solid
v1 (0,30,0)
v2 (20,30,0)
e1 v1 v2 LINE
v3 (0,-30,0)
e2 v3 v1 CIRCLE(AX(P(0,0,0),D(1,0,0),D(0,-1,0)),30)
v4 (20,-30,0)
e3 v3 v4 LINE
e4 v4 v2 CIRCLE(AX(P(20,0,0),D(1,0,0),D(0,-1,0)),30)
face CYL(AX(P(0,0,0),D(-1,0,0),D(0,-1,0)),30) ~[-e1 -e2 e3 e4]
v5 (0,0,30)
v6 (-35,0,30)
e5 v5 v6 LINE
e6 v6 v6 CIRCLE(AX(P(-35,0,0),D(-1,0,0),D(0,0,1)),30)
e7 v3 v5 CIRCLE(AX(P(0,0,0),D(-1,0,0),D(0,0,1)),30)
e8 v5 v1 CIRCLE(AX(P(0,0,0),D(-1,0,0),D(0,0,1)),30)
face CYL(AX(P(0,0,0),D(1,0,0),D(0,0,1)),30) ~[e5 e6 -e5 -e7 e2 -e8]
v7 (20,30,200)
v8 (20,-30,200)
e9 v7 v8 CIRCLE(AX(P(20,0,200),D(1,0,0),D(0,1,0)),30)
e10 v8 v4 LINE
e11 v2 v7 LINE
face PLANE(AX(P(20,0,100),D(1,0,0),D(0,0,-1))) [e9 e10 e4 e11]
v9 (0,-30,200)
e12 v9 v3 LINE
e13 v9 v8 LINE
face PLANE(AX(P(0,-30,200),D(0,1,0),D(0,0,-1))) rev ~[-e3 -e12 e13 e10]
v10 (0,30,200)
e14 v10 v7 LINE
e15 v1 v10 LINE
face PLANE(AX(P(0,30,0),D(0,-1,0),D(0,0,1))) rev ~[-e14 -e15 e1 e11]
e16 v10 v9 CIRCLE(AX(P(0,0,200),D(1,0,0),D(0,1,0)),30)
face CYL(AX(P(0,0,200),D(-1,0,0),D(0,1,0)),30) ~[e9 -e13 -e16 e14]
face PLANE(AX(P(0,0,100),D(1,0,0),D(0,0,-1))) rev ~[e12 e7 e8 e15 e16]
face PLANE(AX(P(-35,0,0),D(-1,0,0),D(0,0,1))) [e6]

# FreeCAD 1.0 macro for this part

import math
import FreeCAD as App
import Part
import Sketcher

V = App.Vector

doc = App.newDocument("Part")
body = doc.addObject("PartDesign::Body", "Body")

sketch1 = body.newObject("Sketcher::SketchObject", "Sketch")
sketch1.AttachmentSupport = (doc.getObject("YZ_Plane"), [""])
sketch1.MapMode = "FlatFace"
sketch1.addGeometry([
    Part.LineSegment(V(30, 0, 0), V(30, 200, 0)),
    Part.ArcOfCircle(Part.Circle(V(0, 200, 0), V(0, 0, 1), 30), math.radians(0), math.radians(180)),
    Part.LineSegment(V(-30, 200, 0), V(-30, 0, 0)),
    Part.ArcOfCircle(Part.Circle(V(0, 0, 0), V(0, 0, 1), 30), math.radians(180), math.radians(360)),
], False)
sketch1.addConstraint([
    Sketcher.Constraint("Tangent", 0, 2, 1, 1),
    Sketcher.Constraint("Tangent", 1, 2, 2, 1),
    Sketcher.Constraint("Tangent", 2, 2, 3, 1),
    Sketcher.Constraint("Tangent", 3, 2, 0, 1),
    Sketcher.Constraint("Vertical", 0),
    Sketcher.Constraint("Vertical", 2),
    Sketcher.Constraint("Coincident", 3, 3, -1, 1),
    Sketcher.Constraint("Radius", 1, 30.0),
    Sketcher.Constraint("DistanceY", 0, 1, 0, 2, 200.0),
])
pad1 = body.newObject("PartDesign::Pad", "Pad")
pad1.Profile = sketch1
pad1.Length = 20

sketch2 = body.newObject("Sketcher::SketchObject", "Sketch001")
sketch2.AttachmentSupport = (doc.getObject("YZ_Plane"), [""])
sketch2.MapMode = "FlatFace"
sketch2.addGeometry(Part.Circle(V(0, 0, 0), V(0, 0, 1), 30), False)
sketch2.addConstraint([
    Sketcher.Constraint("Coincident", 0, 3, -1, 1),
    Sketcher.Constraint("Diameter", 0, 60.0),
])
pad2 = body.newObject("PartDesign::Pad", "Pad001")
pad2.Profile = sketch2
pad2.Length = 35
pad2.Reversed = True

doc.recompute()
